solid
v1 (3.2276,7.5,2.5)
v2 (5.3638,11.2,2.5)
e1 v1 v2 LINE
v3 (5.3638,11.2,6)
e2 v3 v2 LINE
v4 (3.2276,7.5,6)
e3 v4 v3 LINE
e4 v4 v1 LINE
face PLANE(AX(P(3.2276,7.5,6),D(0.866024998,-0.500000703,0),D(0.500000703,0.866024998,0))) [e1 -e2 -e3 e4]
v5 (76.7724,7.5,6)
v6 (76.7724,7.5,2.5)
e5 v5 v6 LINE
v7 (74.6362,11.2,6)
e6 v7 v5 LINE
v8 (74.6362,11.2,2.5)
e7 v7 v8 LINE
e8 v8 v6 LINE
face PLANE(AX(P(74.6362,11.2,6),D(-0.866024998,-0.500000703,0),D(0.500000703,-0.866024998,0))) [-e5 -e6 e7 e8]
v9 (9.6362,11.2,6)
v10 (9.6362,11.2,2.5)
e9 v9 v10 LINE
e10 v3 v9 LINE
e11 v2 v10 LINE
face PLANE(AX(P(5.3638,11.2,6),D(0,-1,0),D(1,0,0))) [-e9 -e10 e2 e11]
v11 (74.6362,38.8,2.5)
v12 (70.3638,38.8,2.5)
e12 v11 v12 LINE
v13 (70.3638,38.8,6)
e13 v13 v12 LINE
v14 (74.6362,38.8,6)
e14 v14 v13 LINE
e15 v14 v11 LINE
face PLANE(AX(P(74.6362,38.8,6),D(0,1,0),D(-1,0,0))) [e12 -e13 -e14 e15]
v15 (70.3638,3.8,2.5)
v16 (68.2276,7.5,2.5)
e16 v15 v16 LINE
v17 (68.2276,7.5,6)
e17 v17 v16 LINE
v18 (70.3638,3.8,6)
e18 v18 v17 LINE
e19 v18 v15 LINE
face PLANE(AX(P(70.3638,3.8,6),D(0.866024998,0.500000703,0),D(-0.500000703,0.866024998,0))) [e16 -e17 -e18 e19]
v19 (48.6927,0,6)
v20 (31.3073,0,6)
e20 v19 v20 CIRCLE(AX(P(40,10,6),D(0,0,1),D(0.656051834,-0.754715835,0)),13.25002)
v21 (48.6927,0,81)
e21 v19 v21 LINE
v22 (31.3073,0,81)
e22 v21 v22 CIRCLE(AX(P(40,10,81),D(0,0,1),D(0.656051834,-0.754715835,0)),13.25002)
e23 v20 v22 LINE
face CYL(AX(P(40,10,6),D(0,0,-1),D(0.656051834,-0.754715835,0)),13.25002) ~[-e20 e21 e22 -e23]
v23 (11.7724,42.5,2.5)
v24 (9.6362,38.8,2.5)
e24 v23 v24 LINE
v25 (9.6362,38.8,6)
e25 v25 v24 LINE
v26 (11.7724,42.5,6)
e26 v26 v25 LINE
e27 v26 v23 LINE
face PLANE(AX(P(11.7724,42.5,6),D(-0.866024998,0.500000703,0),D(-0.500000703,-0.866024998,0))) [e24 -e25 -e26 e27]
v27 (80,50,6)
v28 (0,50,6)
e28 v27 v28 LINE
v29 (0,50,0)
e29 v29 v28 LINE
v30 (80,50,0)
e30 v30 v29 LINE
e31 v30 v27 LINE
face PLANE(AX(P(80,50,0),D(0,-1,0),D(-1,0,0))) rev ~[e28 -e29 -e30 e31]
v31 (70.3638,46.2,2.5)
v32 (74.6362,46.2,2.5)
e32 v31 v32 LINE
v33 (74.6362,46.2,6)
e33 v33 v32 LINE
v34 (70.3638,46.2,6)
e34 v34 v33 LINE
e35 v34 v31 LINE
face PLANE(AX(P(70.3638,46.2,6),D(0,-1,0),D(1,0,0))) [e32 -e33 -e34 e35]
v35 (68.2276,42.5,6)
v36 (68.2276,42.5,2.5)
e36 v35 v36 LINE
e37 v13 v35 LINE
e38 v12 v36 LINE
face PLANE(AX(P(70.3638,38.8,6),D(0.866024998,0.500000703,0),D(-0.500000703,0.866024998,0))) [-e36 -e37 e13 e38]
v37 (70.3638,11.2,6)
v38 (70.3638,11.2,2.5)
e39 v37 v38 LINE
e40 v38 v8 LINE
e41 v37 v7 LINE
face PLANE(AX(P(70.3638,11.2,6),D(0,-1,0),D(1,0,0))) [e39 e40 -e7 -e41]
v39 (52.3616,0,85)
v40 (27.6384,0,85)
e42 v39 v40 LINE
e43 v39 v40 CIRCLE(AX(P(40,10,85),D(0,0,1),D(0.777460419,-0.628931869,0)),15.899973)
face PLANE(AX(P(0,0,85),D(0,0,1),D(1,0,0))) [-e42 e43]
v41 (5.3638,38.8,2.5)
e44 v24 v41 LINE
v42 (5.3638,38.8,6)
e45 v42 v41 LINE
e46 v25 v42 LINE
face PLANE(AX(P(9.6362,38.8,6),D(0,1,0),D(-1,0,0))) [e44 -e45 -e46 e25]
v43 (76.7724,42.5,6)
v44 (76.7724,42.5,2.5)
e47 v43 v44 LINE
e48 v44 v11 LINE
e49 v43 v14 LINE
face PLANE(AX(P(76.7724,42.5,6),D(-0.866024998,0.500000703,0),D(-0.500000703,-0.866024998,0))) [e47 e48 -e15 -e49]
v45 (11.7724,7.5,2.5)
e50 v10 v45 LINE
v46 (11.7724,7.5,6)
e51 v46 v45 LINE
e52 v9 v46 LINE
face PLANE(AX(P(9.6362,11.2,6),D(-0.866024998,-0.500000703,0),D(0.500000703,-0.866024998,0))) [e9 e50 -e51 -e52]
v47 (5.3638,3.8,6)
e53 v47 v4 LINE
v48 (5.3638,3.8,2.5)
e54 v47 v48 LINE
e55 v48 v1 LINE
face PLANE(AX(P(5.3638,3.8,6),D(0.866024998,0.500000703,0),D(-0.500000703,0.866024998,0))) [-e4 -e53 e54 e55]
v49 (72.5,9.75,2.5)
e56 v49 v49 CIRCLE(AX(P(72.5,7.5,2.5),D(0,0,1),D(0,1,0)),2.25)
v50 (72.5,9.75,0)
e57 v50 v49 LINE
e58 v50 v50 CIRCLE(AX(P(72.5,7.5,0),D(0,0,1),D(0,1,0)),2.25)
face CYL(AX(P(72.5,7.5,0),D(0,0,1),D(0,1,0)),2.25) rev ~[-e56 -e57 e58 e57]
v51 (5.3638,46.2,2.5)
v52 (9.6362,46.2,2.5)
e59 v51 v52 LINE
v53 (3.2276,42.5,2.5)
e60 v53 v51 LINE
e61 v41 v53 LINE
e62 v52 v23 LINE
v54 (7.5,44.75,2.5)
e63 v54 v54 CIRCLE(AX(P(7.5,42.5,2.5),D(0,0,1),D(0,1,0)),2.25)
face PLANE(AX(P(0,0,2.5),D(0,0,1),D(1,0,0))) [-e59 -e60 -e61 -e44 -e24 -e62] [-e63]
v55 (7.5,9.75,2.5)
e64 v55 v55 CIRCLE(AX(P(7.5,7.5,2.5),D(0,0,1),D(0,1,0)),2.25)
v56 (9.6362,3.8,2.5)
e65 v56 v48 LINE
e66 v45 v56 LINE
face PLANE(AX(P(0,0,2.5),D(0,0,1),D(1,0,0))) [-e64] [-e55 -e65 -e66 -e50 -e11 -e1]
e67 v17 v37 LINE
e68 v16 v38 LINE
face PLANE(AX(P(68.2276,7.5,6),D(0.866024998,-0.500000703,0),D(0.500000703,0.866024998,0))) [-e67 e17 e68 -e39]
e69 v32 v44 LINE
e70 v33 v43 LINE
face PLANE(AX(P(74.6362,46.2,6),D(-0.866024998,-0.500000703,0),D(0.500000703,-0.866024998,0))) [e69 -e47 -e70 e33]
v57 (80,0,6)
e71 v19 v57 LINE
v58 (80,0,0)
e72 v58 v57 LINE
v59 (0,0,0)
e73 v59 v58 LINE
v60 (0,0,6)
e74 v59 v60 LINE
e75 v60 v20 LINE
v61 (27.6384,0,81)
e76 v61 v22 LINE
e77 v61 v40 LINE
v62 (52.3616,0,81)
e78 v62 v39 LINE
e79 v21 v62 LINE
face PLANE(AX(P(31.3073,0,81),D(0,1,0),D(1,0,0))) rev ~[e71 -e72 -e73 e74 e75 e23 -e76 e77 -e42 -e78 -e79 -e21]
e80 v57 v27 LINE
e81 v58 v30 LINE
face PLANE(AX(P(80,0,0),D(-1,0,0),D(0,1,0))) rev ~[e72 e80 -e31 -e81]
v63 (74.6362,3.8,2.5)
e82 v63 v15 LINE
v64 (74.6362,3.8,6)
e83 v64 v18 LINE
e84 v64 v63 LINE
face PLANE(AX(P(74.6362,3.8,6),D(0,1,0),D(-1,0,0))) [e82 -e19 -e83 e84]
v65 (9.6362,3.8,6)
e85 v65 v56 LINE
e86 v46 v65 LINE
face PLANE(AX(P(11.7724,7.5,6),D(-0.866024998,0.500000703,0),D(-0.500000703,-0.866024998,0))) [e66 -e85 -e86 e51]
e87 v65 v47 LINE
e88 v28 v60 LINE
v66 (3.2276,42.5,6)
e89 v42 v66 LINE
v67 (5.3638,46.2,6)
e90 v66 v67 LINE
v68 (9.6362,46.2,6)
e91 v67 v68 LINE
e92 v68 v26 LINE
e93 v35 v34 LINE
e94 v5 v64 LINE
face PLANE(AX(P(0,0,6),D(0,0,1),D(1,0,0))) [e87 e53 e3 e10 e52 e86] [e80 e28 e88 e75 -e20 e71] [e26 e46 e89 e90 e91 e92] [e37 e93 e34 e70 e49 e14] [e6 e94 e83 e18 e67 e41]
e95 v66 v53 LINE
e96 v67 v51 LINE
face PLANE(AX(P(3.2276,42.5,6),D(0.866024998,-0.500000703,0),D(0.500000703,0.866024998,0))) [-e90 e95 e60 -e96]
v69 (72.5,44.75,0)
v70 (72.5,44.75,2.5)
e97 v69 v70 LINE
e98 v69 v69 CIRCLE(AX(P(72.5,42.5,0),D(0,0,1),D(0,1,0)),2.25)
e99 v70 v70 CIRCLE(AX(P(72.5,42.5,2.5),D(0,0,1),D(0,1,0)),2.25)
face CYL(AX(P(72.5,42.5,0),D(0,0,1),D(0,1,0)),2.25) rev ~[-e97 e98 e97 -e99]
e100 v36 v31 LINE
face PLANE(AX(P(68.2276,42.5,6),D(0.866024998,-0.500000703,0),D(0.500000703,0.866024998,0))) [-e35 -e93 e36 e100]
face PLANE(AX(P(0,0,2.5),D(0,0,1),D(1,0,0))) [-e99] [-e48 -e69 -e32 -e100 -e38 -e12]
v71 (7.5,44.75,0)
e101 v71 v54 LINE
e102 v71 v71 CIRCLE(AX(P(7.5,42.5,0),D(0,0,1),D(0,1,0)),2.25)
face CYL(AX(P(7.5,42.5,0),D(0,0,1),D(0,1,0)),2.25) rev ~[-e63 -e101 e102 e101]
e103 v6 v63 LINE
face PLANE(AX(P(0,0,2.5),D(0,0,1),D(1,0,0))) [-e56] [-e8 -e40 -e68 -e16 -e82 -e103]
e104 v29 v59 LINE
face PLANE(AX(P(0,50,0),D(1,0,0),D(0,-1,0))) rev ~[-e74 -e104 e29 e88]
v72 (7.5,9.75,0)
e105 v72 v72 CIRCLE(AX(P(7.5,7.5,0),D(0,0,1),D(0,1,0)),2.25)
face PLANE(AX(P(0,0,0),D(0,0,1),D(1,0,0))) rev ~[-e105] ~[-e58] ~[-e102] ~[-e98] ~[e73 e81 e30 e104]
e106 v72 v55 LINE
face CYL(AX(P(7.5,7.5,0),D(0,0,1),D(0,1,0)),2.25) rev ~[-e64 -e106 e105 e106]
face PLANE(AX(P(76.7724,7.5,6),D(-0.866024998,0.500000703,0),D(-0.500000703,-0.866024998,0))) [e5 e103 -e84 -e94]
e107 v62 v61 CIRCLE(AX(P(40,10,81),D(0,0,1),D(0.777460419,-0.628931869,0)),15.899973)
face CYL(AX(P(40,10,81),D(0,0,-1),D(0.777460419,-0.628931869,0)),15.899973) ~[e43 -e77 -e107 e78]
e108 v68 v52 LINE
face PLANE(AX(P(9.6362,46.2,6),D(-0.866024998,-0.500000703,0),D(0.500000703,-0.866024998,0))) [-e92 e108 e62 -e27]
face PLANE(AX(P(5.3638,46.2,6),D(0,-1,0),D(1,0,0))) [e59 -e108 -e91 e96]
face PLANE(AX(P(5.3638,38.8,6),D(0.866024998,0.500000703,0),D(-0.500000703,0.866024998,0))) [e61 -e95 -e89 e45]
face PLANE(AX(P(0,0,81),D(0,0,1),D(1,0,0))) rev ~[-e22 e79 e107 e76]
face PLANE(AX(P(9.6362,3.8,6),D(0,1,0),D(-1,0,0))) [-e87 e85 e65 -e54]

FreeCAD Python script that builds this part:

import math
import FreeCAD as App
import Part
import Sketcher
from FreeCAD import Vector
Q = App.Units.Quantity

doc = App.newDocument("Part")
params = doc.addObject("Spreadsheet::Sheet", "Params")
for row, (alias, value) in enumerate([
    ("sketch1_width", "80 mm"),
    ("sketch1_height", "50 mm"),
    ("pad1_length", "6 mm"),
    ("sketch2_radius", "13.25 mm"),
    ("pad2_length", "75 mm"),
    ("sketch3_radius", "15.9 mm"),
    ("pad3_length", "4 mm"),
    ("sketch4_diameter", "4.5 mm"),
    ("hole_diameter", "4.5 mm"),
    ("sketch5_diameter", "4.5 mm"),
    ("pocket1_length", "3.5 mm"),
], start=1):
    params.set(f"A{row}", alias)
    params.set(f"B{row}", "=" + value)
    params.setAlias(f"B{row}", alias)

body = doc.addObject("PartDesign::Body", "Body")

# Sketch on XY plane
sketch1 = body.newObject("Sketcher::SketchObject", "Sketch")
sketch1.AttachmentSupport = (doc.getObject("XY_Plane"), [""])
sketch1.MapMode = "FlatFace"
sketch1.addGeometry([
    Part.LineSegment(Vector(0, 50, 0), Vector(0, 0, 0)),
    Part.LineSegment(Vector(0, 0, 0), Vector(80, 0, 0)),
    Part.LineSegment(Vector(80, 0, 0), Vector(80, 50, 0)),
    Part.LineSegment(Vector(80, 50, 0), Vector(0, 50, 0)),
], False)
sketch1.addConstraint([
    Sketcher.Constraint("Coincident", 0, 2, 1, 1),
    Sketcher.Constraint("Coincident", 1, 2, 2, 1),
    Sketcher.Constraint("Coincident", 2, 2, 3, 1),
    Sketcher.Constraint("Coincident", 3, 2, 0, 1),
    Sketcher.Constraint("Vertical", 0),
    Sketcher.Constraint("Horizontal", 1),
    Sketcher.Constraint("Vertical", 2),
    Sketcher.Constraint("Horizontal", 3),
    Sketcher.Constraint("Coincident", 0, 2, -1, 1),
    Sketcher.Constraint("DistanceX", 1, 1, 1, 2, 80.0),
    Sketcher.Constraint("DistanceY", 0, 2, 0, 1, 50.0),
])
sketch1.setExpression("Constraints[9]", "Params.sketch1_width")
sketch1.setExpression("Constraints[10]", "Params.sketch1_height")
pad1 = body.newObject("PartDesign::Pad", "Pad")
pad1.Profile = sketch1
pad1.setExpression("Length", "Params.pad1_length")

# Sketch on XY plane
sketch2 = body.newObject("Sketcher::SketchObject", "Sketch001")
sketch2.AttachmentSupport = (doc.getObject("XY_Plane"), [""])
sketch2.MapMode = "FlatFace"
sketch2.AttachmentOffset = App.Placement(Vector(0, 0, 6), App.Rotation())
sketch2.addGeometry([
    Part.LineSegment(Vector(31, 0, 0), Vector(49, 0, 0)),
    Part.ArcOfCircle(Part.Circle(Vector(40, 10, 0), Vector(0, 0, 1), 13), math.radians(-49), math.radians(229)),
], False)
sketch2.addConstraint([
    Sketcher.Constraint("Coincident", 0, 1, 1, 2),
    Sketcher.Constraint("Coincident", 1, 1, 0, 2),
    Sketcher.Constraint("Horizontal", 0),
    Sketcher.Constraint("PointOnObject", 0, 1, -1),
    Sketcher.Constraint("Radius", 1, 13.25),
    Sketcher.Constraint("DistanceX", -1, 1, 1, 3, 40.0),
    Sketcher.Constraint("DistanceY", -1, 1, 1, 3, 10.0),
])
sketch2.setExpression("Constraints[4]", "Params.sketch2_radius")
pad2 = body.newObject("PartDesign::Pad", "Pad001")
pad2.Profile = sketch2
pad2.setExpression("Length", "Params.pad2_length")

# Sketch on XY plane
sketch3 = body.newObject("Sketcher::SketchObject", "Sketch002")
sketch3.AttachmentSupport = (doc.getObject("XY_Plane"), [""])
sketch3.MapMode = "FlatFace"
sketch3.AttachmentOffset = App.Placement(Vector(0, 0, 81), App.Rotation())
sketch3.addGeometry([
    Part.ArcOfCircle(Part.Circle(Vector(40, 10, 0), Vector(0, 0, 1), 16), math.radians(-39), math.radians(219)),
    Part.LineSegment(Vector(28, 0, 0), Vector(52, 0, 0)),
], False)
sketch3.addConstraint([
    Sketcher.Constraint("Coincident", 0, 1, 1, 2),
    Sketcher.Constraint("Coincident", 1, 1, 0, 2),
    Sketcher.Constraint("Horizontal", 1),
    Sketcher.Constraint("PointOnObject", 0, 1, -1),
    Sketcher.Constraint("Radius", 0, 15.9),
    Sketcher.Constraint("DistanceX", -1, 1, 0, 3, 40.0),
    Sketcher.Constraint("DistanceY", -1, 1, 0, 3, 10.0),
])
sketch3.setExpression("Constraints[4]", "Params.sketch3_radius")
pad3 = body.newObject("PartDesign::Pad", "Pad002")
pad3.Profile = sketch3
pad3.setExpression("Length", "Params.pad3_length")

# Sketch on XY plane
sketch4 = body.newObject("Sketcher::SketchObject", "Sketch003")
sketch4.AttachmentSupport = (doc.getObject("XY_Plane"), [""])
sketch4.MapMode = "FlatFace"
sketch4.addGeometry([
    Part.Circle(Vector(72.5, 42.5, 0), Vector(0, 0, 1), 2.2),
    Part.Circle(Vector(72.5, 7.5, 0), Vector(0, 0, 1), 2.2),
    Part.Circle(Vector(7.5, 42.5, 0), Vector(0, 0, 1), 2.2),
    Part.Circle(Vector(7.5, 7.5, 0), Vector(0, 0, 1), 2.2),
], False)
sketch4.addConstraint([
    Sketcher.Constraint("Equal", 0, 1),
    Sketcher.Constraint("Equal", 1, 2),
    Sketcher.Constraint("Equal", 2, 3),
    Sketcher.Constraint("Horizontal", 0, 3, 2, 3),
    Sketcher.Constraint("Horizontal", 1, 3, 3, 3),
    Sketcher.Constraint("Vertical", 0, 3, 1, 3),
    Sketcher.Constraint("Vertical", 2, 3, 3, 3),
    Sketcher.Constraint("Diameter", 0, 4.5),
    Sketcher.Constraint("DistanceY", 1, 3, 0, 3, 35.0),
    Sketcher.Constraint("DistanceX", 2, 3, 0, 3, 65.0),
    Sketcher.Constraint("DistanceX", -1, 1, 0, 3, 72.5),
    Sketcher.Constraint("DistanceY", -1, 1, 0, 3, 42.5),
])
sketch4.setExpression("Constraints[7]", "Params.sketch4_diameter")
doc.recompute()
hole = body.newObject("PartDesign::Hole", "Hole")
hole.Profile = sketch4
hole.ThreadType = "None"
hole.setExpression("Diameter", "Params.hole_diameter")
hole.DepthType = "ThroughAll"
hole.Reversed = True

# Sketch on XY plane
sketch5 = body.newObject("Sketcher::SketchObject", "Sketch004")
sketch5.AttachmentSupport = (doc.getObject("XY_Plane"), [""])
sketch5.MapMode = "FlatFace"
sketch5.AttachmentOffset = App.Placement(Vector(0, 0, 6), App.Rotation())
sketch5.addGeometry([
    Part.LineSegment(Vector(9.6, 38.8, 0), Vector(11.8, 42.5, 0)),  # 0
    Part.LineSegment(Vector(11.8, 42.5, 0), Vector(9.6, 46.2, 0)),  # 1
    Part.LineSegment(Vector(9.6, 46.2, 0), Vector(5.4, 46.2, 0)),  # 2
    Part.LineSegment(Vector(5.4, 46.2, 0), Vector(3.2, 42.5, 0)),  # 3
    Part.LineSegment(Vector(3.2, 42.5, 0), Vector(5.4, 38.8, 0)),  # 4
    Part.LineSegment(Vector(5.4, 38.8, 0), Vector(9.6, 38.8, 0)),  # 5
    Part.Circle(Vector(7.5, 42.5, 0), Vector(0, 0, 1), 2.2),  # 6
    Part.LineSegment(Vector(9.6, 3.8, 0), Vector(11.8, 7.5, 0)),  # 7
    Part.LineSegment(Vector(11.8, 7.5, 0), Vector(9.6, 11.2, 0)),  # 8
    Part.LineSegment(Vector(9.6, 11.2, 0), Vector(5.4, 11.2, 0)),  # 9
    Part.LineSegment(Vector(5.4, 11.2, 0), Vector(3.2, 7.5, 0)),  # 10
    Part.LineSegment(Vector(3.2, 7.5, 0), Vector(5.4, 3.8, 0)),  # 11
    Part.LineSegment(Vector(5.4, 3.8, 0), Vector(9.6, 3.8, 0)),  # 12
    Part.Circle(Vector(7.5, 7.5, 0), Vector(0, 0, 1), 2.2),  # 13
    Part.LineSegment(Vector(74.6, 3.8, 0), Vector(76.8, 7.5, 0)),  # 14
    Part.LineSegment(Vector(76.8, 7.5, 0), Vector(74.6, 11.2, 0)),  # 15
    Part.LineSegment(Vector(74.6, 11.2, 0), Vector(70.4, 11.2, 0)),  # 16
    Part.LineSegment(Vector(70.4, 11.2, 0), Vector(68.2, 7.5, 0)),  # 17
    Part.LineSegment(Vector(68.2, 7.5, 0), Vector(70.4, 3.8, 0)),  # 18
    Part.LineSegment(Vector(70.4, 3.8, 0), Vector(74.6, 3.8, 0)),  # 19
    Part.Circle(Vector(72.5, 7.5, 0), Vector(0, 0, 1), 2.2),  # 20
    Part.LineSegment(Vector(74.6, 38.8, 0), Vector(76.8, 42.5, 0)),  # 21
    Part.LineSegment(Vector(76.8, 42.5, 0), Vector(74.6, 46.2, 0)),  # 22
    Part.LineSegment(Vector(74.6, 46.2, 0), Vector(70.4, 46.2, 0)),  # 23
    Part.LineSegment(Vector(70.4, 46.2, 0), Vector(68.2, 42.5, 0)),  # 24
    Part.LineSegment(Vector(68.2, 42.5, 0), Vector(70.4, 38.8, 0)),  # 25
    Part.LineSegment(Vector(70.4, 38.8, 0), Vector(74.6, 38.8, 0)),  # 26
    Part.Circle(Vector(72.5, 42.5, 0), Vector(0, 0, 1), 2.2),  # 27
], False)
sketch5.addConstraint([
    Sketcher.Constraint("Coincident", 0, 2, 1, 1),
    Sketcher.Constraint("Coincident", 1, 2, 2, 1),
    Sketcher.Constraint("Coincident", 2, 2, 3, 1),
    Sketcher.Constraint("Coincident", 3, 2, 4, 1),
    Sketcher.Constraint("Coincident", 4, 2, 5, 1),
    Sketcher.Constraint("Coincident", 5, 2, 0, 1),
    Sketcher.Constraint("Coincident", 7, 2, 8, 1),
    Sketcher.Constraint("Coincident", 8, 2, 9, 1),
    Sketcher.Constraint("Coincident", 9, 2, 10, 1),
    Sketcher.Constraint("Coincident", 10, 2, 11, 1),
    Sketcher.Constraint("Coincident", 11, 2, 12, 1),
    Sketcher.Constraint("Coincident", 12, 2, 7, 1),
    Sketcher.Constraint("Coincident", 14, 2, 15, 1),
    Sketcher.Constraint("Coincident", 15, 2, 16, 1),
    Sketcher.Constraint("Coincident", 16, 2, 17, 1),
    Sketcher.Constraint("Coincident", 17, 2, 18, 1),
    Sketcher.Constraint("Coincident", 18, 2, 19, 1),
    Sketcher.Constraint("Coincident", 19, 2, 14, 1),
    Sketcher.Constraint("Coincident", 21, 2, 22, 1),
    Sketcher.Constraint("Coincident", 22, 2, 23, 1),
    Sketcher.Constraint("Coincident", 23, 2, 24, 1),
    Sketcher.Constraint("Coincident", 24, 2, 25, 1),
    Sketcher.Constraint("Coincident", 25, 2, 26, 1),
    Sketcher.Constraint("Coincident", 26, 2, 21, 1),
    Sketcher.Constraint("Horizontal", 2),
    Sketcher.Constraint("Horizontal", 5),
    Sketcher.Constraint("Horizontal", 9),
    Sketcher.Constraint("Horizontal", 12),
    Sketcher.Constraint("Horizontal", 16),
    Sketcher.Constraint("Horizontal", 19),
    Sketcher.Constraint("Horizontal", 23),
    Sketcher.Constraint("Horizontal", 26),
    Sketcher.Constraint("Equal", 6, 13),
    Sketcher.Constraint("Equal", 13, 20),
    Sketcher.Constraint("Equal", 20, 27),
    Sketcher.Constraint("Parallel", 0, 3),
    Sketcher.Constraint("Parallel", 1, 4),
    Sketcher.Constraint("Parallel", 3, 7),
    Sketcher.Constraint("Parallel", 4, 8),
    Sketcher.Constraint("Parallel", 7, 10),
    Sketcher.Constraint("Parallel", 8, 11),
    Sketcher.Constraint("Parallel", 10, 14),
    Sketcher.Constraint("Parallel", 11, 15),
    Sketcher.Constraint("Parallel", 14, 17),
    Sketcher.Constraint("Parallel", 15, 18),
    Sketcher.Constraint("Parallel", 17, 21),
    Sketcher.Constraint("Parallel", 18, 22),
    Sketcher.Constraint("Parallel", 21, 24),
    Sketcher.Constraint("Parallel", 22, 25),
    Sketcher.Constraint("Horizontal", 13, 3, 20, 3),
    Sketcher.Constraint("Horizontal", 6, 3, 27, 3),
    Sketcher.Constraint("Horizontal", 27, 3, 0, 2),
    Sketcher.Constraint("Horizontal", 0, 2, 3, 2),
    Sketcher.Constraint("Horizontal", 20, 3, 7, 2),
    Sketcher.Constraint("Horizontal", 7, 2, 10, 2),
    Sketcher.Constraint("Horizontal", 10, 2, 14, 2),
    Sketcher.Constraint("Horizontal", 9, 2, 15, 2),
    Sketcher.Constraint("Horizontal", 14, 2, 17, 2),
    Sketcher.Constraint("Horizontal", 12, 2, 18, 2),
    Sketcher.Constraint("Horizontal", 3, 2, 21, 2),
    Sketcher.Constraint("Horizontal", 2, 2, 22, 2),
    Sketcher.Constraint("Horizontal", 21, 2, 24, 2),
    Sketcher.Constraint("Horizontal", 5, 2, 25, 2),
    Sketcher.Constraint("Vertical", 6, 3, 13, 3),
    Sketcher.Constraint("Vertical", 20, 3, 27, 3),
    Sketcher.Constraint("Vertical", 2, 2, 4, 2),
    Sketcher.Constraint("Vertical", 1, 2, 5, 2),
    Sketcher.Constraint("Vertical", 0, 2, 7, 2),
    Sketcher.Constraint("Vertical", 5, 2, 8, 2),
    Sketcher.Constraint("Vertical", 4, 2, 9, 2),
    Sketcher.Constraint("Vertical", 9, 2, 11, 2),
    Sketcher.Constraint("Vertical", 14, 2, 21, 2),
    Sketcher.Constraint("Vertical", 18, 2, 23, 2),
    Sketcher.Constraint("Equal", 12, 16),
    Sketcher.Constraint("Diameter", 6, 4.5),
    Sketcher.Constraint("DistanceY", 4, 2, 2, 2, 7.4),
    Sketcher.Constraint("Angle", 0, Q("60 deg")),
    Sketcher.Constraint("DistanceY", 13, 3, 6, 3, 35.0),
    Sketcher.Constraint("DistanceX", 13, 3, 20, 3, 65.0),
    Sketcher.Constraint("DistanceX", 7, 2, 14, 2, 65.0),
    Sketcher.Constraint("DistanceX", -1, 1, 6, 3, 7.5),
    Sketcher.Constraint("DistanceY", -1, 1, 6, 3, 42.5),
    Sketcher.Constraint("DistanceX", 2, 2, 2, 1, 4.2724),
    Sketcher.Constraint("DistanceX", -1, 1, 0, 2, 11.7724),
])
sketch5.setExpression("Constraints[74]", "Params.sketch5_diameter")
pocket1 = body.newObject("PartDesign::Pocket", "Pocket")
pocket1.Profile = sketch5
pocket1.setExpression("Length", "Params.pocket1_length")

doc.recompute()
